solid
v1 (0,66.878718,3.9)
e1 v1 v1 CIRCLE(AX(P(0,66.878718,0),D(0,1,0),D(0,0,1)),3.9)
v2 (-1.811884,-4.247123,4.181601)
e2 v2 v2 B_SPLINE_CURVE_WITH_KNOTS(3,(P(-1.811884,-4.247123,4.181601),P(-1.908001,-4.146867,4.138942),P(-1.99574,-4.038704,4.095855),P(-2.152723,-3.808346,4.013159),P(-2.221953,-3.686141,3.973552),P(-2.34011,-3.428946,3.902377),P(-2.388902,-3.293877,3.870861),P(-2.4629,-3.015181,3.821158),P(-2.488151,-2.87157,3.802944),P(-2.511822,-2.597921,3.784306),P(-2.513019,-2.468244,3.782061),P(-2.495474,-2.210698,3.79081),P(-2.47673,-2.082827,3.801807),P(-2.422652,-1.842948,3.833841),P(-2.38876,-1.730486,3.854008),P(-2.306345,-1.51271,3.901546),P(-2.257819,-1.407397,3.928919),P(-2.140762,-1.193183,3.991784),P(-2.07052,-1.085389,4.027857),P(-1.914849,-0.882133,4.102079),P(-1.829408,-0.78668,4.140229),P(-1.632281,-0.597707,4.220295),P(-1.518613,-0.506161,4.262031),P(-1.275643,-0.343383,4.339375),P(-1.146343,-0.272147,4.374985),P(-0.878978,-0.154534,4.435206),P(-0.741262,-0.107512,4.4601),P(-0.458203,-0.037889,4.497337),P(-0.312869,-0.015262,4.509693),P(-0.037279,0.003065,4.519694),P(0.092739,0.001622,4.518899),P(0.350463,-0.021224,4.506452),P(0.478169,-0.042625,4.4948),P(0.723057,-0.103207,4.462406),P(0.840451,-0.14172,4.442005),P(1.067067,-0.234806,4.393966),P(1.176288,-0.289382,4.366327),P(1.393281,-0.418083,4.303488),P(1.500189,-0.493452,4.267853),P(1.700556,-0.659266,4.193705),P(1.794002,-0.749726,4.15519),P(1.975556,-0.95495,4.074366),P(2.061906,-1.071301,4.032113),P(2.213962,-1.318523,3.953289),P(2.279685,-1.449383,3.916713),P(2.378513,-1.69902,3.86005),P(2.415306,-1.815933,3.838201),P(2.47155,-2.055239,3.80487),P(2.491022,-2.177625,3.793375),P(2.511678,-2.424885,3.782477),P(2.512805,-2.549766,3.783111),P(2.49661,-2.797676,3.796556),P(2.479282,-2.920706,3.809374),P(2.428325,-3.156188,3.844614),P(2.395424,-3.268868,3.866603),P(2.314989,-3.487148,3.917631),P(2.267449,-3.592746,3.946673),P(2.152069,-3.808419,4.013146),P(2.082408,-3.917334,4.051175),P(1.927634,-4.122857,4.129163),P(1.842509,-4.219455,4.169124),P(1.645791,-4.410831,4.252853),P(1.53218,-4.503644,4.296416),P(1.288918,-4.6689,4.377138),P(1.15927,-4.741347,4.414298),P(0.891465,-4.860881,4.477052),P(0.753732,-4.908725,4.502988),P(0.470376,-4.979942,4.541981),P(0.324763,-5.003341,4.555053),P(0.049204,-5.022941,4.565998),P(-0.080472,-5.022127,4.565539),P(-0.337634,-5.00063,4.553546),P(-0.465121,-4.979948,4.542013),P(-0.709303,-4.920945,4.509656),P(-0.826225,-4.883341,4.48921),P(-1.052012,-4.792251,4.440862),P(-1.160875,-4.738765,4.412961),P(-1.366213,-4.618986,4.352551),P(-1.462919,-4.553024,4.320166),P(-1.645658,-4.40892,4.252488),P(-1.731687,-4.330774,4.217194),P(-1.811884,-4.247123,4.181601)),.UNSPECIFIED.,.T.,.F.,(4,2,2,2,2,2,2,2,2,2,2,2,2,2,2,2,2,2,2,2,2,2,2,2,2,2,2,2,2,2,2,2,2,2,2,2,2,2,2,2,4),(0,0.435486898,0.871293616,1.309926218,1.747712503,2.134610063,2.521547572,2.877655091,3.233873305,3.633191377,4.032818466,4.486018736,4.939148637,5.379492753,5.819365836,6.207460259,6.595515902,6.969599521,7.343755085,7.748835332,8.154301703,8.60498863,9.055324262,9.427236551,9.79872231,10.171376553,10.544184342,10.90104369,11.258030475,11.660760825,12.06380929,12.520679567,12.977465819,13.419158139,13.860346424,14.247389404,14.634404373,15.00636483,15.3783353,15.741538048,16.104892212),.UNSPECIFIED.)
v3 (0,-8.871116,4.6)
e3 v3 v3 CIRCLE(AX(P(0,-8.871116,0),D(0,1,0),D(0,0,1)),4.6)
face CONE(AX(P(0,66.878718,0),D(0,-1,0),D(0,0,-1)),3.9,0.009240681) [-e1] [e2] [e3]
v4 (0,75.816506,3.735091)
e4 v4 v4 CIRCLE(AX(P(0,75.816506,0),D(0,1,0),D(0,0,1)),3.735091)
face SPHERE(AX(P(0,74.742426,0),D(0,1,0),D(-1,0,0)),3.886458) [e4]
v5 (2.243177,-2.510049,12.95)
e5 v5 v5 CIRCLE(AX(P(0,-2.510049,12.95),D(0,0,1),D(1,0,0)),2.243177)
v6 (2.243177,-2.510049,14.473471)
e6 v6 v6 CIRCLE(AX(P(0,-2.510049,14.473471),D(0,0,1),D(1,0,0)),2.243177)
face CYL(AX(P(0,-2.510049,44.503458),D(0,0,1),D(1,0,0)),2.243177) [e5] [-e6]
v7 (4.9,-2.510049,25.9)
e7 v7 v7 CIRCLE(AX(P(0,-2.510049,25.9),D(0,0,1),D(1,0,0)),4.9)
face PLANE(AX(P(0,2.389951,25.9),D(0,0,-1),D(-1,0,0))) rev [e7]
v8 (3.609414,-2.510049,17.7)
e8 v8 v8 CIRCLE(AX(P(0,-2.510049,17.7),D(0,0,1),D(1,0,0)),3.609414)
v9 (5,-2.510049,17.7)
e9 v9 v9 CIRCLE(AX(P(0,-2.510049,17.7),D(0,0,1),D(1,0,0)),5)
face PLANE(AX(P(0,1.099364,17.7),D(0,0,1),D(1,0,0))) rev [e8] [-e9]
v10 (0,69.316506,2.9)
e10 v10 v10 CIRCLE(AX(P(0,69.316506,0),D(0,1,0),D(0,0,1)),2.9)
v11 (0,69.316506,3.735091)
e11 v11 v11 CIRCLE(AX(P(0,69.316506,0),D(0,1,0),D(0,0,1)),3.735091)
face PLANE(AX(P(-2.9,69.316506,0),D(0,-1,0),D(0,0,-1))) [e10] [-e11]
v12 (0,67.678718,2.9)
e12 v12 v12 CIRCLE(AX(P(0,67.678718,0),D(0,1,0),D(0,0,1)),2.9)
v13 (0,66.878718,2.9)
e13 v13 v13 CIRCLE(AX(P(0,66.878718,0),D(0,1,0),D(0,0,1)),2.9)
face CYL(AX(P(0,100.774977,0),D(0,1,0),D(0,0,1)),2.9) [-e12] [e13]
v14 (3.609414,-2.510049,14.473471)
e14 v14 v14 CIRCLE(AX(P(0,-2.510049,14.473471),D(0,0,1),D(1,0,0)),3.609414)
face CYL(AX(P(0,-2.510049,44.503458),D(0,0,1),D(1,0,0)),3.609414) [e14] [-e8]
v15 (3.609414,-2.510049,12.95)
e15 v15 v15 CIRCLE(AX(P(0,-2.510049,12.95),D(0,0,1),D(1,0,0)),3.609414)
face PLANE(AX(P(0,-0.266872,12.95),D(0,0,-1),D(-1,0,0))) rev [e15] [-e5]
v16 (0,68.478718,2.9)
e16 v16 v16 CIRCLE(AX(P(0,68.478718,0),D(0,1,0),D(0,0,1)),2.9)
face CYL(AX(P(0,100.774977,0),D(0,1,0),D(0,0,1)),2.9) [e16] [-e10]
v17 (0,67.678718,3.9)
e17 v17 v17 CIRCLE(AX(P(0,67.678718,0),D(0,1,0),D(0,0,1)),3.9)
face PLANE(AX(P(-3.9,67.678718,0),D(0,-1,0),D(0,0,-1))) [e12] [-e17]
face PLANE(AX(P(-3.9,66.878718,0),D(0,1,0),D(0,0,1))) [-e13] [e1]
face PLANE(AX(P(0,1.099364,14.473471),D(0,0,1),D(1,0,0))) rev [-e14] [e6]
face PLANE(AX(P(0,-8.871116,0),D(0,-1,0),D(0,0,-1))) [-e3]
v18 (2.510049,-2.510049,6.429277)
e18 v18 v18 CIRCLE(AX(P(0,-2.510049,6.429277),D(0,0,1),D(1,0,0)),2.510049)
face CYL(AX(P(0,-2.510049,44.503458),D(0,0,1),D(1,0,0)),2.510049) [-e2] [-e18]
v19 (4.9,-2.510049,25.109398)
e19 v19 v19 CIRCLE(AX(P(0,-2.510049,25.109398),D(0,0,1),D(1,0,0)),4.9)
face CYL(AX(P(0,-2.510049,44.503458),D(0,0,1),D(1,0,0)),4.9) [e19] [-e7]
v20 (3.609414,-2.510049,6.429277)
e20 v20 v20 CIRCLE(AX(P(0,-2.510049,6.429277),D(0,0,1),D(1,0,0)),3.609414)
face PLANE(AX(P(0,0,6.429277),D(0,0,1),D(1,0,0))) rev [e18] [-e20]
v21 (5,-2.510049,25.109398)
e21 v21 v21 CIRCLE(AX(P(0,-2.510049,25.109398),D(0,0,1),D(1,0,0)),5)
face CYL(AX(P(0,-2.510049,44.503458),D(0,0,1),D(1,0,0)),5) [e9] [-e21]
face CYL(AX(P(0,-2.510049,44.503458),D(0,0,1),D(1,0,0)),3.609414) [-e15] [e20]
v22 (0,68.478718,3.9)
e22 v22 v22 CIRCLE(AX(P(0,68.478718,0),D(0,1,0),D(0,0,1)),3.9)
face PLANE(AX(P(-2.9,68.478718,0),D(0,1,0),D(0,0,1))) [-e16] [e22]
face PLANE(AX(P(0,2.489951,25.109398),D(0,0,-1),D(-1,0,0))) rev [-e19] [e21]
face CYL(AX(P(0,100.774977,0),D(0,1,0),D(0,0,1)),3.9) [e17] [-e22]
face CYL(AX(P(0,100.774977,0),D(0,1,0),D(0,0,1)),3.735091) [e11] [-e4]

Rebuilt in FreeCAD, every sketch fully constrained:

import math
import FreeCAD as App
import Part
import Sketcher
from FreeCAD import Vector

doc = App.newDocument("Part")
body = doc.addObject("PartDesign::Body", "Body")

# Sketch on XY plane
sketch1 = body.newObject("Sketcher::SketchObject", "Sketch")
sketch1.AttachmentSupport = (doc.getObject("XY_Plane"), [""])
sketch1.MapMode = "FlatFace"
sketch1.addGeometry(Part.LineSegment(Vector(-4.6, -8.9, 0), Vector(0, -8.9, 0)), False)
sketch1.addGeometry(Part.LineSegment(Vector(0, -8.9, 0), Vector(0, 78.6, 0)), False)
sketch1.addGeometry(Part.ArcOfCircle(Part.Circle(Vector(0, 74.7, 0), Vector(0, 0, 1), 3.9), math.radians(90), math.radians(164)), False)
sketch1.addGeometry(Part.LineSegment(Vector(-3.7, 75.8, 0), Vector(-3.7, 69.3, 0)), False)
sketch1.addGeometry(Part.LineSegment(Vector(-3.7, 69.3, 0), Vector(-2.9, 69.3, 0)), False)
sketch1.addGeometry(Part.LineSegment(Vector(-2.9, 69.3, 0), Vector(-2.9, 68.5, 0)), False)
sketch1.addGeometry(Part.LineSegment(Vector(-2.9, 68.5, 0), Vector(-3.9, 68.5, 0)), False)
sketch1.addGeometry(Part.LineSegment(Vector(-3.9, 68.5, 0), Vector(-3.9, 67.7, 0)), False)
sketch1.addGeometry(Part.LineSegment(Vector(-3.9, 67.7, 0), Vector(-2.9, 67.7, 0)), False)
sketch1.addGeometry(Part.LineSegment(Vector(-2.9, 67.7, 0), Vector(-2.9, 66.9, 0)), False)
sketch1.addGeometry(Part.LineSegment(Vector(-2.9, 66.9, 0), Vector(-3.9, 66.9, 0)), False)
sketch1.addGeometry(Part.LineSegment(Vector(-3.9, 66.9, 0), Vector(-4.6, -8.9, 0)), False)
sketch1.addConstraint(Sketcher.Constraint("Coincident", 0, 2, 1, 1))
sketch1.addConstraint(Sketcher.Constraint("Coincident", 1, 2, 2, 1))
sketch1.addConstraint(Sketcher.Constraint("Coincident", 2, 2, 3, 1))
sketch1.addConstraint(Sketcher.Constraint("Coincident", 3, 2, 4, 1))
sketch1.addConstraint(Sketcher.Constraint("Coincident", 4, 2, 5, 1))
sketch1.addConstraint(Sketcher.Constraint("Coincident", 5, 2, 6, 1))
sketch1.addConstraint(Sketcher.Constraint("Coincident", 6, 2, 7, 1))
sketch1.addConstraint(Sketcher.Constraint("Coincident", 7, 2, 8, 1))
sketch1.addConstraint(Sketcher.Constraint("Coincident", 8, 2, 9, 1))
sketch1.addConstraint(Sketcher.Constraint("Coincident", 9, 2, 10, 1))
sketch1.addConstraint(Sketcher.Constraint("Coincident", 10, 2, 11, 1))
sketch1.addConstraint(Sketcher.Constraint("Coincident", 11, 2, 0, 1))
sketch1.addConstraint(Sketcher.Constraint("Horizontal", 0))
sketch1.addConstraint(Sketcher.Constraint("Vertical", 1))
sketch1.addConstraint(Sketcher.Constraint("Vertical", 3))
sketch1.addConstraint(Sketcher.Constraint("Horizontal", 4))
sketch1.addConstraint(Sketcher.Constraint("Vertical", 5))
sketch1.addConstraint(Sketcher.Constraint("Horizontal", 6))
sketch1.addConstraint(Sketcher.Constraint("Vertical", 7))
sketch1.addConstraint(Sketcher.Constraint("Horizontal", 8))
sketch1.addConstraint(Sketcher.Constraint("Vertical", 9))
sketch1.addConstraint(Sketcher.Constraint("Horizontal", 10))
sketch1.addConstraint(Sketcher.Constraint("PointOnObject", 2, 3, -2))
sketch1.addConstraint(Sketcher.Constraint("PointOnObject", 0, 2, -2))
sketch1.addConstraint(Sketcher.Constraint("Vertical", 5, 2, 8, 2))
sketch1.addConstraint(Sketcher.Constraint("Vertical", 7, 2, 10, 2))
sketch1.addConstraint(Sketcher.Constraint("Equal", 7, 9))
sketch1.addConstraint(Sketcher.Constraint("DistanceX", 6, 2, 6, 1, 1.0))
sketch1.addConstraint(Sketcher.Constraint("DistanceX", 0, 1, 0, 2, 4.6))
sketch1.addConstraint(Sketcher.Constraint("DistanceY", 1, 1, 1, 2, 87.5))
sketch1.addConstraint(Sketcher.Constraint("DistanceY", 3, 2, 3, 1, 6.5))
sketch1.addConstraint(Sketcher.Constraint("DistanceY", 7, 2, 7, 1, 0.8))
sketch1.addConstraint(Sketcher.Constraint("DistanceX", 4, 2, -1, 1, 2.9))
sketch1.addConstraint(Sketcher.Constraint("Radius", 2, 3.886458))
sketch1.addConstraint(Sketcher.Constraint("DistanceX", 4, 1, 4, 2, 0.835091))
sketch1.addConstraint(Sketcher.Constraint("Distance", 11, 75.753069))
sketch1.addConstraint(Sketcher.Constraint("DistanceY", -1, 1, 5, 2, 68.478718))
revolution = body.newObject("PartDesign::Revolution", "Revolution")
revolution.Profile = sketch1
revolution.ReferenceAxis = (sketch1, ["V_Axis"])
revolution.Angle = 360

# Sketch on YZ plane
sketch2 = body.newObject("Sketcher::SketchObject", "Sketch001")
sketch2.AttachmentSupport = (doc.getObject("YZ_Plane"), [""])
sketch2.MapMode = "FlatFace"
sketch2.addGeometry(Part.LineSegment(Vector(0, 0, 0), Vector(0, 6.43, 0)), False)
sketch2.addGeometry(Part.LineSegment(Vector(0, 6.43, 0), Vector(1.1, 6.43, 0)), False)
sketch2.addGeometry(Part.LineSegment(Vector(1.1, 6.43, 0), Vector(1.1, 12.95, 0)), False)
sketch2.addGeometry(Part.LineSegment(Vector(1.1, 12.95, 0), Vector(-0.27, 12.95, 0)), False)
sketch2.addGeometry(Part.LineSegment(Vector(-0.27, 12.95, 0), Vector(-0.27, 14.47, 0)), False)
sketch2.addGeometry(Part.LineSegment(Vector(-0.27, 14.47, 0), Vector(1.1, 14.47, 0)), False)
sketch2.addGeometry(Part.LineSegment(Vector(1.1, 14.47, 0), Vector(1.1, 17.7, 0)), False)
sketch2.addGeometry(Part.LineSegment(Vector(1.1, 17.7, 0), Vector(2.49, 17.7, 0)), False)
sketch2.addGeometry(Part.LineSegment(Vector(2.49, 17.7, 0), Vector(2.49, 25.11, 0)), False)
sketch2.addGeometry(Part.LineSegment(Vector(2.49, 25.11, 0), Vector(2.39, 25.11, 0)), False)
sketch2.addGeometry(Part.LineSegment(Vector(2.39, 25.11, 0), Vector(2.39, 25.9, 0)), False)
sketch2.addGeometry(Part.LineSegment(Vector(2.39, 25.9, 0), Vector(-2.51, 25.9, 0)), False)
sketch2.addGeometry(Part.LineSegment(Vector(-2.51, 25.9, 0), Vector(-2.51, 0, 0)), False)
sketch2.addGeometry(Part.LineSegment(Vector(-2.51, 0, 0), Vector(0, 0, 0)), False)
sketch2.addGeometry(Part.LineSegment(Vector(-2.51, 25.9, 0), Vector(-2.51, 0, 0)), True)  # axis
sketch2.addConstraint(Sketcher.Constraint("Coincident", 0, 2, 1, 1))
sketch2.addConstraint(Sketcher.Constraint("Coincident", 1, 2, 2, 1))
sketch2.addConstraint(Sketcher.Constraint("Coincident", 2, 2, 3, 1))
sketch2.addConstraint(Sketcher.Constraint("Coincident", 3, 2, 4, 1))
sketch2.addConstraint(Sketcher.Constraint("Coincident", 4, 2, 5, 1))
sketch2.addConstraint(Sketcher.Constraint("Coincident", 5, 2, 6, 1))
sketch2.addConstraint(Sketcher.Constraint("Coincident", 6, 2, 7, 1))
sketch2.addConstraint(Sketcher.Constraint("Coincident", 7, 2, 8, 1))
sketch2.addConstraint(Sketcher.Constraint("Coincident", 8, 2, 9, 1))
sketch2.addConstraint(Sketcher.Constraint("Coincident", 9, 2, 10, 1))
sketch2.addConstraint(Sketcher.Constraint("Coincident", 10, 2, 11, 1))
sketch2.addConstraint(Sketcher.Constraint("Coincident", 11, 2, 12, 1))
sketch2.addConstraint(Sketcher.Constraint("Coincident", 12, 2, 13, 1))
sketch2.addConstraint(Sketcher.Constraint("Coincident", 13, 2, 0, 1))
sketch2.addConstraint(Sketcher.Constraint("Vertical", 0))
sketch2.addConstraint(Sketcher.Constraint("Horizontal", 1))
sketch2.addConstraint(Sketcher.Constraint("Vertical", 2))
sketch2.addConstraint(Sketcher.Constraint("Horizontal", 3))
sketch2.addConstraint(Sketcher.Constraint("Vertical", 4))
sketch2.addConstraint(Sketcher.Constraint("Horizontal", 5))
sketch2.addConstraint(Sketcher.Constraint("Vertical", 6))
sketch2.addConstraint(Sketcher.Constraint("Horizontal", 7))
sketch2.addConstraint(Sketcher.Constraint("Vertical", 8))
sketch2.addConstraint(Sketcher.Constraint("Horizontal", 9))
sketch2.addConstraint(Sketcher.Constraint("Vertical", 10))
sketch2.addConstraint(Sketcher.Constraint("Horizontal", 11))
sketch2.addConstraint(Sketcher.Constraint("Vertical", 12))
sketch2.addConstraint(Sketcher.Constraint("Horizontal", 13))
sketch2.addConstraint(Sketcher.Constraint("Vertical", 14))
sketch2.addConstraint(Sketcher.Constraint("Coincident", 13, 2, -1, 1))
sketch2.addConstraint(Sketcher.Constraint("Coincident", 14, 1, 11, 2))
sketch2.addConstraint(Sketcher.Constraint("PointOnObject", 14, 2, -1))
sketch2.addConstraint(Sketcher.Constraint("Vertical", 2, 2, 5, 2))
sketch2.addConstraint(Sketcher.Constraint("DistanceX", 9, 2, 9, 1, 0.1))
sketch2.addConstraint(Sketcher.Constraint("DistanceX", 11, 2, 11, 1, 4.9))
sketch2.addConstraint(Sketcher.Constraint("DistanceY", 12, 2, 12, 1, 25.9))
sketch2.addConstraint(Sketcher.Constraint("DistanceY", -1, 1, 6, 2, 17.7))
sketch2.addConstraint(Sketcher.Constraint("DistanceY", -1, 1, 2, 2, 12.95))
sketch2.addConstraint(Sketcher.Constraint("DistanceX", 13, 1, 13, 2, 2.510049))
sketch2.addConstraint(Sketcher.Constraint("DistanceY", 4, 1, 4, 2, 1.523471))
sketch2.addConstraint(Sketcher.Constraint("DistanceX", 1, 1, 1, 2, 1.099364))
sketch2.addConstraint(Sketcher.Constraint("DistanceX", 3, 2, 3, 1, 1.366236))
sketch2.addConstraint(Sketcher.Constraint("DistanceY", 0, 1, 0, 2, 6.429277))
sketch2.addConstraint(Sketcher.Constraint("DistanceY", 8, 1, 8, 2, 7.409398))
revolution2 = body.newObject("PartDesign::Revolution", "Revolution001")
revolution2.Profile = sketch2
revolution2.ReferenceAxis = (sketch2, ["Axis0"])
revolution2.Angle = 360

doc.recompute()
